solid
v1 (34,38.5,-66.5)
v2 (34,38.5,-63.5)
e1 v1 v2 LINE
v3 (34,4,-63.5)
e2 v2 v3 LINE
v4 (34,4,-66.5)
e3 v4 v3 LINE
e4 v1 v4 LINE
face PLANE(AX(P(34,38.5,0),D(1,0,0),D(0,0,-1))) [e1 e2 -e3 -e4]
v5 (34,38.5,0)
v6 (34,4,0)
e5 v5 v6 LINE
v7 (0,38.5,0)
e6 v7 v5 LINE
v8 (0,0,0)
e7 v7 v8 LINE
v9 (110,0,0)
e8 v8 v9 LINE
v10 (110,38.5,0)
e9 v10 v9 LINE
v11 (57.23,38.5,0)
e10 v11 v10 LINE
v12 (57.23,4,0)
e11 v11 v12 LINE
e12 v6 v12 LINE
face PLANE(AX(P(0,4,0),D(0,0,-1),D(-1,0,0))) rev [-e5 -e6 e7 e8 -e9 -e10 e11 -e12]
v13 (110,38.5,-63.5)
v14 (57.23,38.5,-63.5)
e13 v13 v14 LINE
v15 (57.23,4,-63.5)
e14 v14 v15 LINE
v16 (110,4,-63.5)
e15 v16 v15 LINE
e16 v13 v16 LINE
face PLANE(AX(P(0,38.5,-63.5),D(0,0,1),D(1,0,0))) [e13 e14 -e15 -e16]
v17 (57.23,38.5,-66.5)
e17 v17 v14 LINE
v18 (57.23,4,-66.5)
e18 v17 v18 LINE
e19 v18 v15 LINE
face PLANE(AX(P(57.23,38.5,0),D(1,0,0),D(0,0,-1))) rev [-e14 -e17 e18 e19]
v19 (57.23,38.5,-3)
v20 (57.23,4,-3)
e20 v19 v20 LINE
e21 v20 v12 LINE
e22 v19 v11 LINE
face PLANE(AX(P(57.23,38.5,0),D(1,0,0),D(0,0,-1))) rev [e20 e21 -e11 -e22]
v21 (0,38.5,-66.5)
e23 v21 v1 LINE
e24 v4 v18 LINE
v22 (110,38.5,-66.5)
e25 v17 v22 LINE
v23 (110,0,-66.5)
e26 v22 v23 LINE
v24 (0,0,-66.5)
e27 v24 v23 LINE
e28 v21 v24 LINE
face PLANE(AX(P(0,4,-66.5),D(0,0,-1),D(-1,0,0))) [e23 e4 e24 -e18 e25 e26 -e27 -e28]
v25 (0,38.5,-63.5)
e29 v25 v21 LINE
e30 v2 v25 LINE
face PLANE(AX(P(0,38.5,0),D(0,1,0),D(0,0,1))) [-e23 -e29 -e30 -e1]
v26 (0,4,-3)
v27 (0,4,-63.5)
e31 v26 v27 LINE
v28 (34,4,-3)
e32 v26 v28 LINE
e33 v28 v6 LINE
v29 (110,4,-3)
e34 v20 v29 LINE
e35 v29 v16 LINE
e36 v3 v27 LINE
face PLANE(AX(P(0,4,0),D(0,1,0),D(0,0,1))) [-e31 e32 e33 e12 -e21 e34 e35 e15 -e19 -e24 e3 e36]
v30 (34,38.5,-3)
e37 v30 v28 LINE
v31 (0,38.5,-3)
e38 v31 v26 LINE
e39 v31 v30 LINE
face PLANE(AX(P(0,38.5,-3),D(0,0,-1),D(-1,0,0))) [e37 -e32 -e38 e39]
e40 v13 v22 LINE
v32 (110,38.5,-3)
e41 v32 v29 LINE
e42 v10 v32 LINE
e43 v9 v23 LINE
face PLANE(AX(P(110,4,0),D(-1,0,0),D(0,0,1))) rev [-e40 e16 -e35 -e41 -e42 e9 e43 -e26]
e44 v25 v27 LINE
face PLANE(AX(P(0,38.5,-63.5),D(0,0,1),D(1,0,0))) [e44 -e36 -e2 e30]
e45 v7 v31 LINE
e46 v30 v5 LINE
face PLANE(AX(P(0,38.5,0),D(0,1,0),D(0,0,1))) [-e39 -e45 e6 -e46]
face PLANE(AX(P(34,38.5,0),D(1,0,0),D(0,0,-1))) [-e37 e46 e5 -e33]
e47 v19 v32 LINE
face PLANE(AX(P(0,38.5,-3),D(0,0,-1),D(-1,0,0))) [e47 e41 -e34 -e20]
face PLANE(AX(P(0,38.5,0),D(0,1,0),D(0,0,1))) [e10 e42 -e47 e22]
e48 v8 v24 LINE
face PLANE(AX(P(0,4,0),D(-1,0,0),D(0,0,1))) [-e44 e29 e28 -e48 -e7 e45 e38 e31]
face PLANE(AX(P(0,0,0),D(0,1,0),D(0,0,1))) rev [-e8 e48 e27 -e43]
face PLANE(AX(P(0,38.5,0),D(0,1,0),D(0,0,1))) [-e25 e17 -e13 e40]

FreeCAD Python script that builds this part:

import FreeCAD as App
import Part
import Sketcher

V = App.Vector
Q = App.Units.Quantity


def add_polygon(sketch, points):
    """Adds a closed chain of lines whose ends are joined by coincident constraints."""
    first, n = sketch.GeometryCount, len(points)
    for a, b in zip(points, points[1:] + points[:1]):
        sketch.addGeometry(Part.LineSegment(App.Vector(*a, 0), App.Vector(*b, 0)), False)
    for i in range(n):
        sketch.addConstraint(Sketcher.Constraint("Coincident", first + i, 2, first + (i + 1) % n, 1))

doc = App.newDocument("Part")
body = doc.addObject("PartDesign::Body", "Body")

# Sketch on XZ plane
sketch1 = body.newObject("Sketcher::SketchObject", "Sketch")
sketch1.AttachmentSupport = (doc.getObject("XZ_Plane"), [""])
sketch1.MapMode = "FlatFace"
add_polygon(sketch1, [(0, -63.5), (0, -3), (34, -3), (34, 0), (57.2, 0), (57.2, -3), (110, -3), (110, -63.5), (57.2, -63.5), (57.2, -66.5), (34, -66.5), (34, -63.5)])  # lines 0-11
sketch1.addConstraint([
    Sketcher.Constraint("Vertical", 0),
    Sketcher.Constraint("Horizontal", 1),
    Sketcher.Constraint("Vertical", 2),
    Sketcher.Constraint("Horizontal", 3),
    Sketcher.Constraint("Vertical", 4),
    Sketcher.Constraint("Horizontal", 5),
    Sketcher.Constraint("Vertical", 6),
    Sketcher.Constraint("Horizontal", 7),
    Sketcher.Constraint("Vertical", 8),
    Sketcher.Constraint("Horizontal", 9),
    Sketcher.Constraint("Vertical", 10),
    Sketcher.Constraint("Horizontal", 11),
    Sketcher.Constraint("PointOnObject", 0, 2, -2),
    Sketcher.Constraint("PointOnObject", 2, 2, -1),
    Sketcher.Constraint("Horizontal", 1, 2, 4, 2),
    Sketcher.Constraint("Horizontal", 7, 2, 10, 2),
    Sketcher.Constraint("Vertical", 4, 2, 7, 2),
    Sketcher.Constraint("Vertical", 2, 2, 9, 2),
    Sketcher.Constraint("Equal", 4, 8),
    Sketcher.Constraint("DistanceX", 1, 1, 1, 2, Q("34 mm")),
    Sketcher.Constraint("DistanceY", 2, 1, 2, 2, Q("3 mm")),
    Sketcher.Constraint("DistanceY", 0, 1, 0, 2, Q("60.5 mm")),
    Sketcher.Constraint("DistanceX", -1, 1, 5, 2, Q("110 mm")),
    Sketcher.Constraint("DistanceX", 3, 1, 3, 2, Q("23.23 mm")),
])
pad1 = body.newObject("PartDesign::Pad", "Pad")
pad1.Profile = sketch1
pad1.Length = 4
pad1.Reversed = True

# Sketch on XZ plane
sketch2 = body.newObject("Sketcher::SketchObject", "Sketch001")
sketch2.AttachmentSupport = (doc.getObject("XZ_Plane"), [""])
sketch2.MapMode = "FlatFace"
add_polygon(sketch2, [(57.2, -66.5), (57.2, -63.5), (110, -63.5), (110, -66.5)])  # lines 0-3
add_polygon(sketch2, [(0, -66.5), (0, -63.5), (34, -63.5), (34, -66.5)])  # lines 4-7
add_polygon(sketch2, [(0, -3), (0, 0), (34, 0), (34, -3)])  # lines 8-11
add_polygon(sketch2, [(57.2, -3), (57.2, 0), (110, 0), (110, -3)])  # lines 12-15
sketch2.addConstraint([
    Sketcher.Constraint("Vertical", 0),
    Sketcher.Constraint("Horizontal", 1),
    Sketcher.Constraint("Vertical", 2),
    Sketcher.Constraint("Horizontal", 3),
    Sketcher.Constraint("Vertical", 4),
    Sketcher.Constraint("Horizontal", 5),
    Sketcher.Constraint("Vertical", 6),
    Sketcher.Constraint("Horizontal", 7),
    Sketcher.Constraint("Vertical", 8),
    Sketcher.Constraint("Horizontal", 9),
    Sketcher.Constraint("Vertical", 10),
    Sketcher.Constraint("Horizontal", 11),
    Sketcher.Constraint("Vertical", 12),
    Sketcher.Constraint("Horizontal", 13),
    Sketcher.Constraint("Vertical", 14),
    Sketcher.Constraint("Horizontal", 15),
    Sketcher.Constraint("Coincident", 8, 2, -1, 1),
    Sketcher.Constraint("PointOnObject", 4, 2, -2),
    Sketcher.Constraint("PointOnObject", 12, 2, -1),
    Sketcher.Constraint("Horizontal", 1, 2, 4, 2),
    Sketcher.Constraint("Horizontal", 3, 2, 6, 2),
    Sketcher.Constraint("Horizontal", 11, 2, 14, 2),
    Sketcher.Constraint("Vertical", 6, 2, 9, 2),
    Sketcher.Constraint("Vertical", 3, 2, 12, 2),
    Sketcher.Constraint("Vertical", 2, 2, 13, 2),
    Sketcher.Constraint("Equal", 6, 8),
    Sketcher.Constraint("DistanceX", 5, 1, 5, 2, Q("34 mm")),
    Sketcher.Constraint("DistanceY", 0, 1, 0, 2, Q("3 mm")),
    Sketcher.Constraint("DistanceX", -1, 1, 1, 2, Q("110 mm")),
    Sketcher.Constraint("DistanceX", 1, 1, 1, 2, Q("52.77 mm")),
    Sketcher.Constraint("DistanceY", 0, 2, -1, 1, Q("63.5 mm")),
])
pad2 = body.newObject("PartDesign::Pad", "Pad001")
pad2.Profile = sketch2
pad2.Length = 38.5
pad2.Reversed = True

doc.recompute()
